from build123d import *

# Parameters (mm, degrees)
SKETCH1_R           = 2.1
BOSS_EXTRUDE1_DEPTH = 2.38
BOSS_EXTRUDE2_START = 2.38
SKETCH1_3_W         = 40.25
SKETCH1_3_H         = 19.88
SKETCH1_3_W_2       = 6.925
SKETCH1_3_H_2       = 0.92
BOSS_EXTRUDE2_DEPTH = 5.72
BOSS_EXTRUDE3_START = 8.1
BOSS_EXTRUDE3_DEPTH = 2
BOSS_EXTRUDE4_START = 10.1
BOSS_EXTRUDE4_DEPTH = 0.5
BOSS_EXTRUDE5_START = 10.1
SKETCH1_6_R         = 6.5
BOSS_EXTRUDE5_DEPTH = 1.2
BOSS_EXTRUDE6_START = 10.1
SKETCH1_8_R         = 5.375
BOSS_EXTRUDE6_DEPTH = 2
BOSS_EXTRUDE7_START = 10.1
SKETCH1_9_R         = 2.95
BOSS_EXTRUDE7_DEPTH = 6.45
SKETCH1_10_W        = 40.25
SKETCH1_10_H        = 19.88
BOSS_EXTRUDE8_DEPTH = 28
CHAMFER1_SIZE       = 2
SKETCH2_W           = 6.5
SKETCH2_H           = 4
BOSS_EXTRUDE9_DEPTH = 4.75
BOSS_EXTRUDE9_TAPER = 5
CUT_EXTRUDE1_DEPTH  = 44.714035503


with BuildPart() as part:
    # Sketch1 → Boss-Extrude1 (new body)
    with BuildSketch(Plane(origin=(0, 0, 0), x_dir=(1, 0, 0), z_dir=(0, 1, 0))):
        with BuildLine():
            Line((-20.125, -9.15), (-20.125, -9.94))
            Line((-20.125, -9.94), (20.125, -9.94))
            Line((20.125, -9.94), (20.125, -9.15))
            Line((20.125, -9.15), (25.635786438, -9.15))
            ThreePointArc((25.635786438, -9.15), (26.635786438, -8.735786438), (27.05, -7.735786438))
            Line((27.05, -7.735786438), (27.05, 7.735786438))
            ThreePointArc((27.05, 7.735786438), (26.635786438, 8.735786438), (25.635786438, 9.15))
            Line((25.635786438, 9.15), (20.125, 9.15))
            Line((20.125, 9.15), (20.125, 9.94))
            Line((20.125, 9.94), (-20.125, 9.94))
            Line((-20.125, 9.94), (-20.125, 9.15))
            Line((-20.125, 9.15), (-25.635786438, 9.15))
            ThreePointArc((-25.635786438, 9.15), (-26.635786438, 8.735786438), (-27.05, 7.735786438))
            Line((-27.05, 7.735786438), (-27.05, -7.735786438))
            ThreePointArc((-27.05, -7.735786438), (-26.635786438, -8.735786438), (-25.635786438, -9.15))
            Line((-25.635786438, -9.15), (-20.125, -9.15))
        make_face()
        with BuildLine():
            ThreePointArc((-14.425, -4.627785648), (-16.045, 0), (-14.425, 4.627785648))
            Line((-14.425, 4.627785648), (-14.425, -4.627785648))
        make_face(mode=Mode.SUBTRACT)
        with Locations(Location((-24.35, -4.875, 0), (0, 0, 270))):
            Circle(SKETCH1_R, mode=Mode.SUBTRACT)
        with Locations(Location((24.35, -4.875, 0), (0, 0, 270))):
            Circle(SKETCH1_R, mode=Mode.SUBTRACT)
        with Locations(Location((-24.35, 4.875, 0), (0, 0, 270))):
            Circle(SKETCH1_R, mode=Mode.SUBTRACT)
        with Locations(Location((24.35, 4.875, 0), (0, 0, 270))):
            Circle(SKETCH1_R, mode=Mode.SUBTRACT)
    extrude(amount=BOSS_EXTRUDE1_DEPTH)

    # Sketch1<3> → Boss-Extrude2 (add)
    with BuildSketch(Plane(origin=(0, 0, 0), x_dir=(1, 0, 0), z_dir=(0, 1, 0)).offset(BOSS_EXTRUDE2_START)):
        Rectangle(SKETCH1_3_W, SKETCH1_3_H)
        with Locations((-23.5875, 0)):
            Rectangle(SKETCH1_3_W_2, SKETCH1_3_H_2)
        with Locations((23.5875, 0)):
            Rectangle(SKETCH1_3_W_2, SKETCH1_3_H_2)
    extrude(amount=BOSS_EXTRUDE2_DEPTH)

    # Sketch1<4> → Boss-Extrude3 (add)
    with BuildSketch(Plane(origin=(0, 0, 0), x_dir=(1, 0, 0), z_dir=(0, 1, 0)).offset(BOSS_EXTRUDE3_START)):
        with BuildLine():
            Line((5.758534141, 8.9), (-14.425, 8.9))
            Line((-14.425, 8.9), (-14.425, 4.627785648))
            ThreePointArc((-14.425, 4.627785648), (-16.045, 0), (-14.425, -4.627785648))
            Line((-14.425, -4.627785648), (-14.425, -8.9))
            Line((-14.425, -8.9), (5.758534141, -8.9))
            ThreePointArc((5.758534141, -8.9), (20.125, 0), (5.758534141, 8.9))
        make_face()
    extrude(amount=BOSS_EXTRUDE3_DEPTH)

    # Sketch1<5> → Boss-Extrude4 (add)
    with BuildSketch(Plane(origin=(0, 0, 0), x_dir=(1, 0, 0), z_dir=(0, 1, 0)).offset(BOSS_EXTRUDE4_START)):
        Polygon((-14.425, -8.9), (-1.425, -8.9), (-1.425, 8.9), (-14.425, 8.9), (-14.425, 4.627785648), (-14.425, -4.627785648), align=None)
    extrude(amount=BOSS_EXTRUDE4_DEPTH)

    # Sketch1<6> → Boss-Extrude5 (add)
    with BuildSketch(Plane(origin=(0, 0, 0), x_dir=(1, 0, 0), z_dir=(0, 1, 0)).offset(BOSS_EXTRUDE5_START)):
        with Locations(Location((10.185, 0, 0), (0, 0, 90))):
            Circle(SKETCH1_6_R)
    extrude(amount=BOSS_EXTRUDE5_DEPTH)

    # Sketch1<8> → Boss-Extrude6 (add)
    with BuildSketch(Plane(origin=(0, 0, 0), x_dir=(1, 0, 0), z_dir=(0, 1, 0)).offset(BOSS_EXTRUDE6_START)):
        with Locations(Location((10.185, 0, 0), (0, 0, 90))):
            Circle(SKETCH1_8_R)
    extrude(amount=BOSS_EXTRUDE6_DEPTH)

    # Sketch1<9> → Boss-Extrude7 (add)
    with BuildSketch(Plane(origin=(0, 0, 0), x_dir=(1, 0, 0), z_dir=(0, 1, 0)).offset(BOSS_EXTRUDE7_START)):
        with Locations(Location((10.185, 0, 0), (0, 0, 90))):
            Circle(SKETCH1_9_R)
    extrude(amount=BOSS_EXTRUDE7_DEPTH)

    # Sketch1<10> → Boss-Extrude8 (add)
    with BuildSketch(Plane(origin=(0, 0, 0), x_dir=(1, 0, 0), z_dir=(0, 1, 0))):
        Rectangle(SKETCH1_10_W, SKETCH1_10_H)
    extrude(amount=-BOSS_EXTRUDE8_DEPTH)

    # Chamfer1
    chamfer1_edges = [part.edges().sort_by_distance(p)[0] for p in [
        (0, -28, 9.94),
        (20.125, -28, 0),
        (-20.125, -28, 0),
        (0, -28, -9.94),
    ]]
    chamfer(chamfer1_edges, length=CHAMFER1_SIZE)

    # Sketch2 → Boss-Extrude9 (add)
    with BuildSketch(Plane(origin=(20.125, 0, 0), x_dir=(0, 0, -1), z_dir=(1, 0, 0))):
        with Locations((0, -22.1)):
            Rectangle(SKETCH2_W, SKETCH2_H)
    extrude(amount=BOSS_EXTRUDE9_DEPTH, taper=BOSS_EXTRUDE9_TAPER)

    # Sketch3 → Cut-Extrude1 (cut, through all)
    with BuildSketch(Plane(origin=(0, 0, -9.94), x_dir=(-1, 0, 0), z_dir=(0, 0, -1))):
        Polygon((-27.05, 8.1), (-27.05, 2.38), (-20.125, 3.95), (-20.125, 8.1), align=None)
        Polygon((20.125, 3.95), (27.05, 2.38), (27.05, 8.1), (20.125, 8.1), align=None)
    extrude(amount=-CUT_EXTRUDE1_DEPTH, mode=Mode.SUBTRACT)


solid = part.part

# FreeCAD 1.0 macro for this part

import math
import FreeCAD as App
import Part
import Sketcher


def edges_at(feature, points):
    """Names of the edges that pass closest to the given points."""
    edges = feature.Shape.Edges
    near = lambda p: min(range(len(edges)), key=lambda i: edges[i].distToShape(Part.Vertex(*p))[0])
    return sorted({f"Edge{near(p) + 1}" for p in points})


def add_polygon(sketch, points):
    """Adds a closed chain of lines whose ends are joined by coincident constraints."""
    first, n = sketch.GeometryCount, len(points)
    for a, b in zip(points, points[1:] + points[:1]):
        sketch.addGeometry(Part.LineSegment(App.Vector(*a, 0), App.Vector(*b, 0)), False)
    for i in range(n):
        sketch.addConstraint(Sketcher.Constraint("Coincident", first + i, 2, first + (i + 1) % n, 1))

doc = App.newDocument("Part")
body = doc.addObject("PartDesign::Body", "Body")

sketch1 = body.newObject("Sketcher::SketchObject", "Sketch")
sketch1.AttachmentSupport = (doc.getObject("XZ_Plane"), [""])
sketch1.MapMode = "FlatFace"
sketch1.addGeometry(Part.LineSegment(App.Vector(-20.1, 9.2, 0), App.Vector(-20.1, 9.9, 0)), False)
sketch1.addGeometry(Part.LineSegment(App.Vector(-20.1, 9.9, 0), App.Vector(20.1, 9.9, 0)), False)
sketch1.addGeometry(Part.LineSegment(App.Vector(20.1, 9.9, 0), App.Vector(20.1, 9.2, 0)), False)
sketch1.addGeometry(Part.LineSegment(App.Vector(20.1, 9.2, 0), App.Vector(25.6, 9.2, 0)), False)
sketch1.addGeometry(Part.ArcOfCircle(Part.Circle(App.Vector(25.6, 7.7, 0), App.Vector(0, 0, 1), 1.4), math.radians(0), math.radians(90)), False)
sketch1.addGeometry(Part.LineSegment(App.Vector(27.1, 7.7, 0), App.Vector(27.1, -7.7, 0)), False)
sketch1.addGeometry(Part.ArcOfCircle(Part.Circle(App.Vector(25.6, -7.7, 0), App.Vector(0, 0, 1), 1.4), math.radians(-90), math.radians(0)), False)
sketch1.addGeometry(Part.LineSegment(App.Vector(25.6, -9.2, 0), App.Vector(20.1, -9.2, 0)), False)
sketch1.addGeometry(Part.LineSegment(App.Vector(20.1, -9.2, 0), App.Vector(20.1, -9.9, 0)), False)
sketch1.addGeometry(Part.LineSegment(App.Vector(20.1, -9.9, 0), App.Vector(-20.1, -9.9, 0)), False)
sketch1.addGeometry(Part.LineSegment(App.Vector(-20.1, -9.9, 0), App.Vector(-20.1, -9.2, 0)), False)
sketch1.addGeometry(Part.LineSegment(App.Vector(-20.1, -9.2, 0), App.Vector(-25.6, -9.2, 0)), False)
sketch1.addGeometry(Part.ArcOfCircle(Part.Circle(App.Vector(-25.6, -7.7, 0), App.Vector(0, 0, 1), 1.4), math.radians(180), math.radians(270)), False)
sketch1.addGeometry(Part.LineSegment(App.Vector(-27.1, -7.7, 0), App.Vector(-27.1, 7.7, 0)), False)
sketch1.addGeometry(Part.ArcOfCircle(Part.Circle(App.Vector(-25.6, 7.7, 0), App.Vector(0, 0, 1), 1.4), math.radians(90), math.radians(180)), False)
sketch1.addGeometry(Part.LineSegment(App.Vector(-25.6, 9.2, 0), App.Vector(-20.1, 9.2, 0)), False)
sketch1.addGeometry(Part.Circle(App.Vector(-24.4, 4.9, 0), App.Vector(0, 0, 1), 2.1), False)
sketch1.addGeometry(Part.Circle(App.Vector(24.4, 4.9, 0), App.Vector(0, 0, 1), 2.1), False)
sketch1.addGeometry(Part.LineSegment(App.Vector(-14.4, -4.6, 0), App.Vector(-14.4, 4.6, 0)), False)
sketch1.addGeometry(Part.ArcOfCircle(Part.Circle(App.Vector(-8.6, 0, 0), App.Vector(0, 0, 1), 7.4), math.radians(141), math.radians(219)), False)
sketch1.addGeometry(Part.Circle(App.Vector(-24.4, -4.9, 0), App.Vector(0, 0, 1), 2.1), False)
sketch1.addGeometry(Part.Circle(App.Vector(24.4, -4.9, 0), App.Vector(0, 0, 1), 2.1), False)
sketch1.addConstraint(Sketcher.Constraint("Coincident", 0, 2, 1, 1))
sketch1.addConstraint(Sketcher.Constraint("Coincident", 1, 2, 2, 1))
sketch1.addConstraint(Sketcher.Constraint("Coincident", 2, 2, 3, 1))
sketch1.addConstraint(Sketcher.Constraint("Tangent", 3, 2, 4, 2))
sketch1.addConstraint(Sketcher.Constraint("Tangent", 4, 1, 5, 1))
sketch1.addConstraint(Sketcher.Constraint("Tangent", 5, 2, 6, 2))
sketch1.addConstraint(Sketcher.Constraint("Tangent", 6, 1, 7, 1))
sketch1.addConstraint(Sketcher.Constraint("Coincident", 7, 2, 8, 1))
sketch1.addConstraint(Sketcher.Constraint("Coincident", 8, 2, 9, 1))
sketch1.addConstraint(Sketcher.Constraint("Coincident", 9, 2, 10, 1))
sketch1.addConstraint(Sketcher.Constraint("Coincident", 10, 2, 11, 1))
sketch1.addConstraint(Sketcher.Constraint("Tangent", 11, 2, 12, 2))
sketch1.addConstraint(Sketcher.Constraint("Tangent", 12, 1, 13, 1))
sketch1.addConstraint(Sketcher.Constraint("Tangent", 13, 2, 14, 2))
sketch1.addConstraint(Sketcher.Constraint("Tangent", 14, 1, 15, 1))
sketch1.addConstraint(Sketcher.Constraint("Coincident", 15, 2, 0, 1))
sketch1.addConstraint(Sketcher.Constraint("Coincident", 18, 1, 19, 2))
sketch1.addConstraint(Sketcher.Constraint("Coincident", 19, 1, 18, 2))
sketch1.addConstraint(Sketcher.Constraint("Vertical", 0))
sketch1.addConstraint(Sketcher.Constraint("Horizontal", 1))
sketch1.addConstraint(Sketcher.Constraint("Vertical", 2))
sketch1.addConstraint(Sketcher.Constraint("Horizontal", 3))
sketch1.addConstraint(Sketcher.Constraint("Vertical", 5))
sketch1.addConstraint(Sketcher.Constraint("Horizontal", 7))
sketch1.addConstraint(Sketcher.Constraint("Vertical", 8))
sketch1.addConstraint(Sketcher.Constraint("Horizontal", 9))
sketch1.addConstraint(Sketcher.Constraint("Vertical", 10))
sketch1.addConstraint(Sketcher.Constraint("Horizontal", 11))
sketch1.addConstraint(Sketcher.Constraint("Vertical", 13))
sketch1.addConstraint(Sketcher.Constraint("Horizontal", 15))
sketch1.addConstraint(Sketcher.Constraint("Vertical", 18))
sketch1.addConstraint(Sketcher.Constraint("Equal", 4, 6))
sketch1.addConstraint(Sketcher.Constraint("Equal", 6, 12))
sketch1.addConstraint(Sketcher.Constraint("Equal", 12, 14))
sketch1.addConstraint(Sketcher.Constraint("Equal", 16, 17))
sketch1.addConstraint(Sketcher.Constraint("Equal", 17, 20))
sketch1.addConstraint(Sketcher.Constraint("Equal", 20, 21))
sketch1.addConstraint(Sketcher.Constraint("Symmetric", 4, 3, 12, 3, -1, 1))
sketch1.addConstraint(Sketcher.Constraint("Symmetric", 17, 3, 20, 3, -1, 1))
sketch1.addConstraint(Sketcher.Constraint("Symmetric", 16, 3, 21, 3, -1, 1))
sketch1.addConstraint(Sketcher.Constraint("Symmetric", 0, 2, 8, 2, -1, 1))
sketch1.addConstraint(Sketcher.Constraint("Symmetric", 16, 3, 17, 3, -2))
sketch1.addConstraint(Sketcher.Constraint("Symmetric", 7, 2, 10, 2, -2))
sketch1.addConstraint(Sketcher.Constraint("Symmetric", 2, 2, 15, 2, -2))
sketch1.addConstraint(Sketcher.Constraint("PointOnObject", 19, 3, -1))
sketch1.addConstraint(Sketcher.Constraint("Diameter", 16, 4.2))
sketch1.addConstraint(Sketcher.Constraint("Radius", 19, 7.42))
sketch1.addConstraint(Sketcher.Constraint("DistanceX", 1, 1, 1, 2, 40.25))
sketch1.addConstraint(Sketcher.Constraint("DistanceY", 0, 1, 0, 2, 0.79))
sketch1.addConstraint(Sketcher.Constraint("DistanceX", 16, 3, 17, 3, 48.7))
sketch1.addConstraint(Sketcher.Constraint("DistanceX", 0, 2, 19, 3, 11.5))
sketch1.addConstraint(Sketcher.Constraint("DistanceX", 17, 3, 4, 1, 2.7))
sketch1.addConstraint(Sketcher.Constraint("DistanceX", 10, 2, 18, 1, 5.7))
sketch1.addConstraint(Sketcher.Constraint("DistanceY", -1, 1, 0, 2, 9.94))
sketch1.addConstraint(Sketcher.Constraint("DistanceY", 20, 3, 16, 3, 9.75))
sketch1.addConstraint(Sketcher.Constraint("Radius", 4, 1.414214))
pad1 = body.newObject("PartDesign::Pad", "Pad")
pad1.Profile = sketch1
pad1.Length = 2.38
pad1.Reversed = True

sketch2 = body.newObject("Sketcher::SketchObject", "Sketch001")
sketch2.AttachmentSupport = (doc.getObject("XZ_Plane"), [""])
sketch2.MapMode = "FlatFace"
sketch2.AttachmentOffset = App.Placement(App.Vector(0, 0, -2.38), App.Rotation())
add_polygon(sketch2, [(-20.1, 0.5), (-20.1, 9.9), (20.1, 9.9), (20.1, 0.5), (27.1, 0.5), (27.1, -0.5), (20.1, -0.5), (20.1, -9.9), (-20.1, -9.9), (-20.1, -0.5), (-27.1, -0.5), (-27.1, 0.5)])
sketch2.addConstraint(Sketcher.Constraint("Vertical", 0))
sketch2.addConstraint(Sketcher.Constraint("Horizontal", 1))
sketch2.addConstraint(Sketcher.Constraint("Vertical", 2))
sketch2.addConstraint(Sketcher.Constraint("Horizontal", 3))
sketch2.addConstraint(Sketcher.Constraint("Vertical", 4))
sketch2.addConstraint(Sketcher.Constraint("Horizontal", 5))
sketch2.addConstraint(Sketcher.Constraint("Vertical", 6))
sketch2.addConstraint(Sketcher.Constraint("Horizontal", 7))
sketch2.addConstraint(Sketcher.Constraint("Vertical", 8))
sketch2.addConstraint(Sketcher.Constraint("Horizontal", 9))
sketch2.addConstraint(Sketcher.Constraint("Vertical", 10))
sketch2.addConstraint(Sketcher.Constraint("Horizontal", 11))
sketch2.addConstraint(Sketcher.Constraint("Symmetric", 0, 2, 6, 2, -1, 1))
sketch2.addConstraint(Sketcher.Constraint("Symmetric", 2, 2, 8, 2, -1, 1))
sketch2.addConstraint(Sketcher.Constraint("Symmetric", 4, 2, 10, 2, -1, 1))
sketch2.addConstraint(Sketcher.Constraint("Symmetric", 5, 2, 8, 2, -2))
sketch2.addConstraint(Sketcher.Constraint("DistanceX", 1, 1, 1, 2, 40.25))
sketch2.addConstraint(Sketcher.Constraint("DistanceY", 0, 1, 0, 2, 9.48))
sketch2.addConstraint(Sketcher.Constraint("DistanceY", 4, 2, 4, 1, 0.92))
sketch2.addConstraint(Sketcher.Constraint("DistanceX", 3, 1, 3, 2, 6.925))
pad2 = body.newObject("PartDesign::Pad", "Pad001")
pad2.Profile = sketch2
pad2.Length = 5.72
pad2.Reversed = True

sketch3 = body.newObject("Sketcher::SketchObject", "Sketch002")
sketch3.AttachmentSupport = (doc.getObject("XZ_Plane"), [""])
sketch3.MapMode = "FlatFace"
sketch3.AttachmentOffset = App.Placement(App.Vector(0, 0, -8.1), App.Rotation())
sketch3.addGeometry(Part.LineSegment(App.Vector(5.8, -8.9, 0), App.Vector(-14.4, -8.9, 0)), False)
sketch3.addGeometry(Part.LineSegment(App.Vector(-14.4, -8.9, 0), App.Vector(-14.4, -4.6, 0)), False)
sketch3.addGeometry(Part.ArcOfCircle(Part.Circle(App.Vector(-8.6, 0, 0), App.Vector(0, 0, 1), 7.4), math.radians(141), math.radians(219)), False)
sketch3.addGeometry(Part.LineSegment(App.Vector(-14.4, 4.6, 0), App.Vector(-14.4, 8.9, 0)), False)
sketch3.addGeometry(Part.LineSegment(App.Vector(-14.4, 8.9, 0), App.Vector(5.8, 8.9, 0)), False)
sketch3.addGeometry(Part.ArcOfCircle(Part.Circle(App.Vector(10.2, 0, 0), App.Vector(0, 0, 1), 9.9), math.radians(-116), math.radians(116)), False)
sketch3.addConstraint(Sketcher.Constraint("Coincident", 0, 2, 1, 1))
sketch3.addConstraint(Sketcher.Constraint("Coincident", 1, 2, 2, 2))
sketch3.addConstraint(Sketcher.Constraint("Coincident", 2, 1, 3, 1))
sketch3.addConstraint(Sketcher.Constraint("Coincident", 3, 2, 4, 1))
sketch3.addConstraint(Sketcher.Constraint("Coincident", 4, 2, 5, 2))
sketch3.addConstraint(Sketcher.Constraint("Coincident", 5, 1, 0, 1))
sketch3.addConstraint(Sketcher.Constraint("Horizontal", 0))
sketch3.addConstraint(Sketcher.Constraint("Vertical", 1))
sketch3.addConstraint(Sketcher.Constraint("Vertical", 3))
sketch3.addConstraint(Sketcher.Constraint("Horizontal", 4))
sketch3.addConstraint(Sketcher.Constraint("Symmetric", 1, 2, 2, 1, -1))
sketch3.addConstraint(Sketcher.Constraint("Symmetric", 4, 2, 5, 1, -1))
sketch3.addConstraint(Sketcher.Constraint("Radius", 2, 7.42))
sketch3.addConstraint(Sketcher.Constraint("Radius", 5, 9.94))
sketch3.addConstraint(Sketcher.Constraint("DistanceY", 0, 2, -1, 1, 8.9))
sketch3.addConstraint(Sketcher.Constraint("DistanceX", 0, 2, 2, 3, 5.8))
sketch3.addConstraint(Sketcher.Constraint("DistanceX", 2, 3, 5, 3, 18.81))
sketch3.addConstraint(Sketcher.Constraint("DistanceX", 2, 3, -1, 1, 8.625))
pad3 = body.newObject("PartDesign::Pad", "Pad002")
pad3.Profile = sketch3
pad3.Length = 2
pad3.Reversed = True

sketch4 = body.newObject("Sketcher::SketchObject", "Sketch003")
sketch4.AttachmentSupport = (doc.getObject("XZ_Plane"), [""])
sketch4.MapMode = "FlatFace"
sketch4.AttachmentOffset = App.Placement(App.Vector(0, 0, -10.1), App.Rotation())
add_polygon(sketch4, [(-14, 9), (-1, 9), (-1, -9), (-14, -9)])
sketch4.addConstraint(Sketcher.Constraint("Horizontal", 0))
sketch4.addConstraint(Sketcher.Constraint("Vertical", 1))
sketch4.addConstraint(Sketcher.Constraint("Horizontal", 2))
sketch4.addConstraint(Sketcher.Constraint("Vertical", 3))
sketch4.addConstraint(Sketcher.Constraint("DistanceX", 0, 1, 0, 2, 13.0))
sketch4.addConstraint(Sketcher.Constraint("DistanceY", 1, 2, 1, 1, 17.8))
sketch4.addConstraint(Sketcher.Constraint("DistanceY", -1, 1, 0, 2, 8.9))
sketch4.addConstraint(Sketcher.Constraint("DistanceX", 0, 2, -1, 1, 1.425))
pad4 = body.newObject("PartDesign::Pad", "Pad003")
pad4.Profile = sketch4
pad4.Length = 0.5
pad4.Reversed = True

sketch5 = body.newObject("Sketcher::SketchObject", "Sketch004")
sketch5.AttachmentSupport = (doc.getObject("XZ_Plane"), [""])
sketch5.MapMode = "FlatFace"
sketch5.AttachmentOffset = App.Placement(App.Vector(0, 0, -10.1), App.Rotation())
sketch5.addGeometry(Part.Circle(App.Vector(10, 0, 0), App.Vector(0, 0, 1), 6), False)
sketch5.addConstraint(Sketcher.Constraint("PointOnObject", 0, 3, -1))
sketch5.addConstraint(Sketcher.Constraint("Diameter", 0, 13.0))
sketch5.addConstraint(Sketcher.Constraint("DistanceX", -1, 1, 0, 3, 10.185))
pad5 = body.newObject("PartDesign::Pad", "Pad004")
pad5.Profile = sketch5
pad5.Length = 1.2
pad5.Reversed = True

sketch6 = body.newObject("Sketcher::SketchObject", "Sketch005")
sketch6.AttachmentSupport = (doc.getObject("XZ_Plane"), [""])
sketch6.MapMode = "FlatFace"
sketch6.AttachmentOffset = App.Placement(App.Vector(0, 0, -10.1), App.Rotation())
sketch6.addGeometry(Part.Circle(App.Vector(10, 0, 0), App.Vector(0, 0, 1), 5), False)
sketch6.addConstraint(Sketcher.Constraint("PointOnObject", 0, 3, -1))
sketch6.addConstraint(Sketcher.Constraint("Diameter", 0, 10.75))
sketch6.addConstraint(Sketcher.Constraint("DistanceX", -1, 1, 0, 3, 10.185))
pad6 = body.newObject("PartDesign::Pad", "Pad005")
pad6.Profile = sketch6
pad6.Length = 2
pad6.Reversed = True

sketch7 = body.newObject("Sketcher::SketchObject", "Sketch006")
sketch7.AttachmentSupport = (doc.getObject("XZ_Plane"), [""])
sketch7.MapMode = "FlatFace"
sketch7.AttachmentOffset = App.Placement(App.Vector(0, 0, -10.1), App.Rotation())
sketch7.addGeometry(Part.Circle(App.Vector(10.2, 0, 0), App.Vector(0, 0, 1), 3), False)
sketch7.addConstraint(Sketcher.Constraint("PointOnObject", 0, 3, -1))
sketch7.addConstraint(Sketcher.Constraint("Diameter", 0, 5.9))
sketch7.addConstraint(Sketcher.Constraint("DistanceX", -1, 1, 0, 3, 10.185))
pad7 = body.newObject("PartDesign::Pad", "Pad006")
pad7.Profile = sketch7
pad7.Length = 6.45
pad7.Reversed = True

sketch8 = body.newObject("Sketcher::SketchObject", "Sketch007")
sketch8.AttachmentSupport = (doc.getObject("XZ_Plane"), [""])
sketch8.MapMode = "FlatFace"
add_polygon(sketch8, [(-20, -10), (-20, 10), (20, 10), (20, -10)])
sketch8.addConstraint(Sketcher.Constraint("Vertical", 0))
sketch8.addConstraint(Sketcher.Constraint("Horizontal", 1))
sketch8.addConstraint(Sketcher.Constraint("Vertical", 2))
sketch8.addConstraint(Sketcher.Constraint("Horizontal", 3))
sketch8.addConstraint(Sketcher.Constraint("Symmetric", 0, 2, 2, 2, -1, 1))
sketch8.addConstraint(Sketcher.Constraint("DistanceX", 1, 1, 1, 2, 40.25))
sketch8.addConstraint(Sketcher.Constraint("DistanceY", 0, 1, 0, 2, 19.88))
pad8 = body.newObject("PartDesign::Pad", "Pad007")
pad8.Profile = sketch8
pad8.Length = 28
doc.recompute()

chamfer = body.newObject("PartDesign::Chamfer", "Chamfer")
chamfer.Base = (pad8, edges_at(pad8, [
    (0, -28, 9.94),
    (20.125, -28, 0),
    (-20.125, -28, 0),
    (0, -28, -9.94),
]))
chamfer.Size = 2

sketch9 = body.newObject("Sketcher::SketchObject", "Sketch008")
sketch9.AttachmentSupport = (doc.getObject("YZ_Plane"), [""])
sketch9.MapMode = "FlatFace"
sketch9.AttachmentOffset = App.Placement(App.Vector(0, 0, 20.125), App.Rotation())
add_polygon(sketch9, [(-20.1, 3.2), (-24.1, 3.2), (-24.1, -3.2), (-20.1, -3.2)])
sketch9.addConstraint(Sketcher.Constraint("Horizontal", 0))
sketch9.addConstraint(Sketcher.Constraint("Vertical", 1))
sketch9.addConstraint(Sketcher.Constraint("Horizontal", 2))
sketch9.addConstraint(Sketcher.Constraint("Vertical", 3))
sketch9.addConstraint(Sketcher.Constraint("DistanceX", 0, 2, 0, 1, 4.0))
sketch9.addConstraint(Sketcher.Constraint("DistanceY", 1, 2, 1, 1, 6.5))
sketch9.addConstraint(Sketcher.Constraint("DistanceX", 0, 2, -1, 1, 24.1))
sketch9.addConstraint(Sketcher.Constraint("DistanceY", -1, 1, 0, 2, 3.25))
pad9 = body.newObject("PartDesign::Pad", "Pad008")
pad9.Profile = sketch9
pad9.Length = 4.75
pad9.TaperAngle = -5

sketch10 = body.newObject("Sketcher::SketchObject", "Sketch009")
sketch10.AttachmentSupport = (doc.getObject("XY_Plane"), [""])
sketch10.MapMode = "FlatFace"
sketch10.AttachmentOffset = App.Placement(App.Vector(0, 0, -9.94), App.Rotation())
add_polygon(sketch10, [(27.1, 8.1), (27.1, 2.4), (20.1, 4), (20.1, 8.1)])
add_polygon(sketch10, [(-20.1, 4), (-27.1, 2.4), (-27.1, 8.1), (-20.1, 8.1)])
sketch10.addConstraint(Sketcher.Constraint("Vertical", 0))
sketch10.addConstraint(Sketcher.Constraint("Vertical", 2))
sketch10.addConstraint(Sketcher.Constraint("Horizontal", 3))
sketch10.addConstraint(Sketcher.Constraint("Vertical", 5))
sketch10.addConstraint(Sketcher.Constraint("Horizontal", 6))
sketch10.addConstraint(Sketcher.Constraint("Vertical", 7))
sketch10.addConstraint(Sketcher.Constraint("Symmetric", 0, 2, 4, 2, -2))
sketch10.addConstraint(Sketcher.Constraint("Symmetric", 2, 2, 6, 2, -2))
sketch10.addConstraint(Sketcher.Constraint("Horizontal", 1, 2, 7, 2))
sketch10.addConstraint(Sketcher.Constraint("DistanceY", 0, 2, 0, 1, 5.72))
sketch10.addConstraint(Sketcher.Constraint("DistanceY", 2, 1, 2, 2, 4.15))
sketch10.addConstraint(Sketcher.Constraint("DistanceY", -1, 1, 2, 2, 8.1))
sketch10.addConstraint(Sketcher.Constraint("DistanceX", 4, 2, 0, 2, 54.1))
sketch10.addConstraint(Sketcher.Constraint("DistanceX", 3, 1, 3, 2, 6.925))
pocket1 = body.newObject("PartDesign::Pocket", "Pocket")
pocket1.Profile = sketch10
pocket1.Type = "ThroughAll"
pocket1.Reversed = True

doc.recompute()
